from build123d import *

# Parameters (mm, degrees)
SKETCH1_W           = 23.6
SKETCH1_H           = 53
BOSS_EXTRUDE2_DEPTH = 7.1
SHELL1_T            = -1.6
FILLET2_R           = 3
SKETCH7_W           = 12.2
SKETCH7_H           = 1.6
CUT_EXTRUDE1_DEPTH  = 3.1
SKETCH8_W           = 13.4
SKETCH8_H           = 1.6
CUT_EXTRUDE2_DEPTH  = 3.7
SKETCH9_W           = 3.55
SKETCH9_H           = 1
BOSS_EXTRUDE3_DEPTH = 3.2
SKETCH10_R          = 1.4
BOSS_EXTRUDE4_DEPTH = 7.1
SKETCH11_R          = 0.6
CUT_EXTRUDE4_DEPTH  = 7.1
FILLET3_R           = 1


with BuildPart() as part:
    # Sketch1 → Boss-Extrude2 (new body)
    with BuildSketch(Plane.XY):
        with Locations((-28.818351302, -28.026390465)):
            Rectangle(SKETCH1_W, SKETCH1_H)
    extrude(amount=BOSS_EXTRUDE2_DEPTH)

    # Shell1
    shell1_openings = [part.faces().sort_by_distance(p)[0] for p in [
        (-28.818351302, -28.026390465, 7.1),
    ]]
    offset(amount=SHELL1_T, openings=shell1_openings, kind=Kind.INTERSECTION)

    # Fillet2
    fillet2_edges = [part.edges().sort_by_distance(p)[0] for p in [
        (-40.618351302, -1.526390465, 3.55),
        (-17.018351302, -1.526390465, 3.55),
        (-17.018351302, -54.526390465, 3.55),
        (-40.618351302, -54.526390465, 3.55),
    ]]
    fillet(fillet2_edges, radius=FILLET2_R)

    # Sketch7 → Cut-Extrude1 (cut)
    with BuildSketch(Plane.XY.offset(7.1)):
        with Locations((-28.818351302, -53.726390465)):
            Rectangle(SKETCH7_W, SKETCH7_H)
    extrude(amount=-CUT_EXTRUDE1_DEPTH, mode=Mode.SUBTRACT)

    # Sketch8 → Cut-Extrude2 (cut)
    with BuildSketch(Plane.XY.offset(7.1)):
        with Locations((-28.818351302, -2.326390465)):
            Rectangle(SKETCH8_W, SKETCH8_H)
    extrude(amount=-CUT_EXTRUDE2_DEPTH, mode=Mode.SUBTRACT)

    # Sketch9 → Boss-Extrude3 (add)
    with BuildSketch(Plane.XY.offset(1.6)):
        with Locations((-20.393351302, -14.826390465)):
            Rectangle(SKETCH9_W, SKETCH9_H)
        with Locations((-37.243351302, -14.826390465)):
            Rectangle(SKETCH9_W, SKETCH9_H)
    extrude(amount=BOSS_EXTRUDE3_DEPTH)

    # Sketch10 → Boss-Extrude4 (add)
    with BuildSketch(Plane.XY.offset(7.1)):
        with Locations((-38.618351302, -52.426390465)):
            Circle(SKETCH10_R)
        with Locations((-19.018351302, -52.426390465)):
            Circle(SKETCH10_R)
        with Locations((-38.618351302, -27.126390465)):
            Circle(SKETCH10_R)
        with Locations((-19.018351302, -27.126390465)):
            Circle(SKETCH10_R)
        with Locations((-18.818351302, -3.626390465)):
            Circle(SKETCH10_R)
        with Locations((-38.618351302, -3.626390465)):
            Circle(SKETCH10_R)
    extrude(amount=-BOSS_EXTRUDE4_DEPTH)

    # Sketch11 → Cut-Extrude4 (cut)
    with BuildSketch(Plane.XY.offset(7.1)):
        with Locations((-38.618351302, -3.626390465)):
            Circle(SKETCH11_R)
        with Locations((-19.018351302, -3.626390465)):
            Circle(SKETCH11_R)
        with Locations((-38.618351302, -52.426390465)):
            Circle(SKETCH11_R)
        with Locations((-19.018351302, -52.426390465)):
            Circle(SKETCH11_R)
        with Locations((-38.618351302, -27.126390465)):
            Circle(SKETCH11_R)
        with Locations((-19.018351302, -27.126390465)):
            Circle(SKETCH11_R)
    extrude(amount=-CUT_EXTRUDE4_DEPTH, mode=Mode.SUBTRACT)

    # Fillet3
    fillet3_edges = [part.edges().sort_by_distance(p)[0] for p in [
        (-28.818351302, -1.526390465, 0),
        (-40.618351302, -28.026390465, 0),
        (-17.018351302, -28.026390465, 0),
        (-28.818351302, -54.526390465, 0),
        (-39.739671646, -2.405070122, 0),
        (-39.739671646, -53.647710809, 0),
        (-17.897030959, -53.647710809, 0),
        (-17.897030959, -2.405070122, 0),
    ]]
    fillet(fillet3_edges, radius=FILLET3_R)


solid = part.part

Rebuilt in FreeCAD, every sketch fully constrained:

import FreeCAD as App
import Part
import Sketcher


def edges_at(feature, points):
    """Names of the edges that pass closest to the given points."""
    edges = feature.Shape.Edges
    near = lambda p: min(range(len(edges)), key=lambda i: edges[i].distToShape(Part.Vertex(*p))[0])
    return sorted({f"Edge{near(p) + 1}" for p in points})


def faces_at(feature, points):
    """Names of the faces that lie closest to the given points."""
    faces = feature.Shape.Faces
    near = lambda p: min(range(len(faces)), key=lambda i: faces[i].distToShape(Part.Vertex(*p))[0])
    return sorted({f"Face{near(p) + 1}" for p in points})


def add_polygon(sketch, points):
    """Adds a closed chain of lines whose ends are joined by coincident constraints."""
    first, n = sketch.GeometryCount, len(points)
    for a, b in zip(points, points[1:] + points[:1]):
        sketch.addGeometry(Part.LineSegment(App.Vector(*a, 0), App.Vector(*b, 0)), False)
    for i in range(n):
        sketch.addConstraint(Sketcher.Constraint("Coincident", first + i, 2, first + (i + 1) % n, 1))

doc = App.newDocument("Part")
params = doc.addObject("Spreadsheet::Sheet", "Params")
for row, (alias, value) in enumerate([
    ("sketch1_height", "53 mm"),
    ("sketch1_width", "23.6 mm"),
    ("pad1_length", "7.1 mm"),
    ("thickness_wall", "1.6 mm"),
    ("fillet_radius", "3 mm"),
    ("sketch2_width", "12.2 mm"),
    ("sketch2_height", "1.6 mm"),
    ("pocket1_length", "3.1 mm"),
    ("sketch3_width", "13.4 mm"),
    ("sketch3_height", "1.6 mm"),
    ("pocket2_length", "3.7 mm"),
    ("sketch4_height", "1 mm"),
    ("sketch4_width", "3.55 mm"),
    ("pad2_length", "3.2 mm"),
    ("sketch5_diameter", "2.8 mm"),
    ("pad3_length", "7.1 mm"),
    ("sketch6_diameter", "1.2 mm"),
    ("pocket3_length", "7.1 mm"),
    ("fillet2_radius", "1 mm"),
], start=1):
    params.set(f"A{row}", alias)
    params.set(f"B{row}", "=" + value)
    params.setAlias(f"B{row}", alias)

body = doc.addObject("PartDesign::Body", "Body")

# Sketch on XY plane
sketch1 = body.newObject("Sketcher::SketchObject", "Sketch")
sketch1.AttachmentSupport = (doc.getObject("XY_Plane"), [""])
sketch1.MapMode = "FlatFace"
add_polygon(sketch1, [(-41, -2), (-41, -55), (-17, -55), (-17, -2)])  # lines 0-3
sketch1.addConstraint([
    Sketcher.Constraint("Vertical", 0),
    Sketcher.Constraint("Horizontal", 1),
    Sketcher.Constraint("Vertical", 2),
    Sketcher.Constraint("Horizontal", 3),
    Sketcher.Constraint("DistanceY", 0, 2, 0, 1, 53.0),
    Sketcher.Constraint("DistanceX", 1, 1, 1, 2, 23.6),
    Sketcher.Constraint("DistanceX", 0, 2, -1, 1, 40.618351),
    Sketcher.Constraint("DistanceY", 0, 2, -1, 1, 54.52639),
])
sketch1.setExpression("Constraints[8]", "Params.sketch1_height")
sketch1.setExpression("Constraints[9]", "Params.sketch1_width")
pad1 = body.newObject("PartDesign::Pad", "Pad")
pad1.Profile = sketch1
pad1.setExpression("Length", "Params.pad1_length")
doc.recompute()

thickness = body.newObject("PartDesign::Thickness", "Thickness")
thickness.Base = (pad1, faces_at(pad1, [(-28.818, -28.026, 7.1)]))
thickness.setExpression("Value", "Params.thickness_wall")
thickness.Reversed = True
thickness.Join = "Intersection"
doc.recompute()

fillet = body.newObject("PartDesign::Fillet", "Fillet")
fillet.Base = (thickness, edges_at(thickness, [
    (-40.618, -1.526, 3.55),
    (-17.018, -1.526, 3.55),
    (-17.018, -54.526, 3.55),
    (-40.618, -54.526, 3.55),
]))
fillet.setExpression("Radius", "Params.fillet_radius")

# Sketch on XY plane
sketch2 = body.newObject("Sketcher::SketchObject", "Sketch001")
sketch2.AttachmentSupport = (doc.getObject("XY_Plane"), [""])
sketch2.MapMode = "FlatFace"
sketch2.AttachmentOffset = App.Placement(App.Vector(0, 0, 7.1), App.Rotation())
add_polygon(sketch2, [(-34.9, -52.9), (-34.9, -54.5), (-22.7, -54.5), (-22.7, -52.9)])  # lines 0-3
sketch2.addConstraint([
    Sketcher.Constraint("Vertical", 0),
    Sketcher.Constraint("Horizontal", 1),
    Sketcher.Constraint("Vertical", 2),
    Sketcher.Constraint("Horizontal", 3),
    Sketcher.Constraint("DistanceX", 1, 1, 1, 2, 12.2),
    Sketcher.Constraint("DistanceY", 0, 2, 0, 1, 1.6),
    Sketcher.Constraint("DistanceX", 0, 2, -1, 1, 34.918351),
    Sketcher.Constraint("DistanceY", 0, 2, -1, 1, 54.52639),
])
sketch2.setExpression("Constraints[8]", "Params.sketch2_width")
sketch2.setExpression("Constraints[9]", "Params.sketch2_height")
pocket1 = body.newObject("PartDesign::Pocket", "Pocket")
pocket1.Profile = sketch2
pocket1.setExpression("Length", "Params.pocket1_length")

# Sketch on XY plane
sketch3 = body.newObject("Sketcher::SketchObject", "Sketch002")
sketch3.AttachmentSupport = (doc.getObject("XY_Plane"), [""])
sketch3.MapMode = "FlatFace"
sketch3.AttachmentOffset = App.Placement(App.Vector(0, 0, 7.1), App.Rotation())
add_polygon(sketch3, [(-35.5, -1.5), (-35.5, -3.1), (-22.1, -3.1), (-22.1, -1.5)])  # lines 0-3
sketch3.addConstraint([
    Sketcher.Constraint("Vertical", 0),
    Sketcher.Constraint("Horizontal", 1),
    Sketcher.Constraint("Vertical", 2),
    Sketcher.Constraint("Horizontal", 3),
    Sketcher.Constraint("DistanceX", 1, 1, 1, 2, 13.4),
    Sketcher.Constraint("DistanceY", 0, 2, 0, 1, 1.6),
    Sketcher.Constraint("DistanceX", 0, 2, -1, 1, 35.518351),
    Sketcher.Constraint("DistanceY", 0, 2, -1, 1, 3.12639),
])
sketch3.setExpression("Constraints[8]", "Params.sketch3_width")
sketch3.setExpression("Constraints[9]", "Params.sketch3_height")
pocket2 = body.newObject("PartDesign::Pocket", "Pocket001")
pocket2.Profile = sketch3
pocket2.setExpression("Length", "Params.pocket2_length")

# Sketch on XY plane
sketch4 = body.newObject("Sketcher::SketchObject", "Sketch003")
sketch4.AttachmentSupport = (doc.getObject("XY_Plane"), [""])
sketch4.MapMode = "FlatFace"
sketch4.AttachmentOffset = App.Placement(App.Vector(0, 0, 1.6), App.Rotation())
add_polygon(sketch4, [(-22.2, -14.3), (-22.2, -15.3), (-18.6, -15.3), (-18.6, -14.3)])  # lines 0-3
add_polygon(sketch4, [(-39, -14.3), (-39, -15.3), (-35.5, -15.3), (-35.5, -14.3)])  # lines 4-7
sketch4.addConstraint([
    Sketcher.Constraint("Vertical", 0),
    Sketcher.Constraint("Horizontal", 1),
    Sketcher.Constraint("Vertical", 2),
    Sketcher.Constraint("Horizontal", 3),
    Sketcher.Constraint("Vertical", 4),
    Sketcher.Constraint("Horizontal", 5),
    Sketcher.Constraint("Vertical", 6),
    Sketcher.Constraint("Horizontal", 7),
    Sketcher.Constraint("Horizontal", 1, 2, 4, 2),
    Sketcher.Constraint("Horizontal", 3, 2, 6, 2),
    Sketcher.Constraint("Equal", 3, 5),
    Sketcher.Constraint("DistanceY", 0, 2, 0, 1, 1.0),
    Sketcher.Constraint("DistanceX", 1, 1, 1, 2, 3.55),
    Sketcher.Constraint("DistanceX", 4, 2, 1, 2, 20.4),
    Sketcher.Constraint("DistanceX", 0, 2, -1, 1, 22.168351),
    Sketcher.Constraint("DistanceY", 0, 2, -1, 1, 15.32639),
])
sketch4.setExpression("Constraints[19]", "Params.sketch4_height")
sketch4.setExpression("Constraints[20]", "Params.sketch4_width")
pad2 = body.newObject("PartDesign::Pad", "Pad001")
pad2.Profile = sketch4
pad2.setExpression("Length", "Params.pad2_length")

# Sketch on XY plane
sketch5 = body.newObject("Sketcher::SketchObject", "Sketch004")
sketch5.AttachmentSupport = (doc.getObject("XY_Plane"), [""])
sketch5.MapMode = "FlatFace"
sketch5.AttachmentOffset = App.Placement(App.Vector(0, 0, 7.1), App.Rotation())
sketch5.addGeometry([
    Part.Circle(App.Vector(-38.6, -52.4, 0), App.Vector(0, 0, 1), 1.4),  # 0
    Part.Circle(App.Vector(-19, -52.4, 0), App.Vector(0, 0, 1), 1.4),  # 1
    Part.Circle(App.Vector(-38.6, -27.1, 0), App.Vector(0, 0, 1), 1.4),  # 2
    Part.Circle(App.Vector(-19, -27.1, 0), App.Vector(0, 0, 1), 1.4),  # 3
    Part.Circle(App.Vector(-18.8, -3.6, 0), App.Vector(0, 0, 1), 1.4),  # 4
    Part.Circle(App.Vector(-38.6, -3.6, 0), App.Vector(0, 0, 1), 1.4),  # 5
], False)
sketch5.addConstraint([
    Sketcher.Constraint("Equal", 0, 1),
    Sketcher.Constraint("Equal", 1, 2),
    Sketcher.Constraint("Equal", 2, 3),
    Sketcher.Constraint("Equal", 3, 4),
    Sketcher.Constraint("Equal", 4, 5),
    Sketcher.Constraint("Horizontal", 0, 3, 1, 3),
    Sketcher.Constraint("Horizontal", 2, 3, 3, 3),
    Sketcher.Constraint("Horizontal", 4, 3, 5, 3),
    Sketcher.Constraint("Vertical", 0, 3, 2, 3),
    Sketcher.Constraint("Vertical", 1, 3, 3, 3),
    Sketcher.Constraint("Vertical", 2, 3, 5, 3),
    Sketcher.Constraint("Diameter", 0, 2.8),
    Sketcher.Constraint("DistanceX", 0, 3, 1, 3, 19.6),
    Sketcher.Constraint("DistanceY", 0, 3, 2, 3, 25.3),
    Sketcher.Constraint("DistanceX", 3, 3, 4, 3, 0.2),
    Sketcher.Constraint("DistanceY", 3, 3, 4, 3, 23.5),
    Sketcher.Constraint("DistanceX", 0, 3, -1, 1, 38.618351),
    Sketcher.Constraint("DistanceY", 0, 3, -1, 1, 52.42639),
])
sketch5.setExpression("Constraints[11]", "Params.sketch5_diameter")
pad3 = body.newObject("PartDesign::Pad", "Pad002")
pad3.Profile = sketch5
pad3.setExpression("Length", "Params.pad3_length")
pad3.Reversed = True

# Sketch on XY plane
sketch6 = body.newObject("Sketcher::SketchObject", "Sketch005")
sketch6.AttachmentSupport = (doc.getObject("XY_Plane"), [""])
sketch6.MapMode = "FlatFace"
sketch6.AttachmentOffset = App.Placement(App.Vector(0, 0, 7.1), App.Rotation())
sketch6.addGeometry([
    Part.Circle(App.Vector(-38.6, -3.6, 0), App.Vector(0, 0, 1), 0.6),  # 0
    Part.Circle(App.Vector(-19, -3.6, 0), App.Vector(0, 0, 1), 0.6),  # 1
    Part.Circle(App.Vector(-38.6, -52.4, 0), App.Vector(0, 0, 1), 0.6),  # 2
    Part.Circle(App.Vector(-19, -52.4, 0), App.Vector(0, 0, 1), 0.6),  # 3
    Part.Circle(App.Vector(-38.6, -27.1, 0), App.Vector(0, 0, 1), 0.6),  # 4
    Part.Circle(App.Vector(-19, -27.1, 0), App.Vector(0, 0, 1), 0.6),  # 5
], False)
sketch6.addConstraint([
    Sketcher.Constraint("Equal", 0, 1),
    Sketcher.Constraint("Equal", 1, 2),
    Sketcher.Constraint("Equal", 2, 3),
    Sketcher.Constraint("Equal", 3, 4),
    Sketcher.Constraint("Equal", 4, 5),
    Sketcher.Constraint("Horizontal", 0, 3, 1, 3),
    Sketcher.Constraint("Horizontal", 2, 3, 3, 3),
    Sketcher.Constraint("Horizontal", 4, 3, 5, 3),
    Sketcher.Constraint("Vertical", 0, 3, 2, 3),
    Sketcher.Constraint("Vertical", 1, 3, 3, 3),
    Sketcher.Constraint("Vertical", 2, 3, 4, 3),
    Sketcher.Constraint("Vertical", 3, 3, 5, 3),
    Sketcher.Constraint("Diameter", 0, 1.2),
    Sketcher.Constraint("DistanceX", 0, 3, 1, 3, 19.6),
    Sketcher.Constraint("DistanceY", 2, 3, 0, 3, 48.8),
    Sketcher.Constraint("DistanceY", 4, 3, 0, 3, 23.5),
    Sketcher.Constraint("DistanceX", 0, 3, -1, 1, 38.618351),
    Sketcher.Constraint("DistanceY", 0, 3, -1, 1, 3.62639),
])
sketch6.setExpression("Constraints[12]", "Params.sketch6_diameter")
pocket3 = body.newObject("PartDesign::Pocket", "Pocket002")
pocket3.Profile = sketch6
pocket3.setExpression("Length", "Params.pocket3_length")
doc.recompute()

fillet2 = body.newObject("PartDesign::Fillet", "Fillet001")
fillet2.Base = (pocket3, edges_at(pocket3, [
    (-28.818, -1.526, 0),
    (-40.618, -28.026, 0),
    (-17.018, -28.026, 0),
    (-28.818, -54.526, 0),
    (-39.74, -2.405, 0),
    (-39.74, -53.648, 0),
    (-17.897, -53.648, 0),
    (-17.897, -2.405, 0),
]))
fillet2.setExpression("Radius", "Params.fillet2_radius")

doc.recompute()
